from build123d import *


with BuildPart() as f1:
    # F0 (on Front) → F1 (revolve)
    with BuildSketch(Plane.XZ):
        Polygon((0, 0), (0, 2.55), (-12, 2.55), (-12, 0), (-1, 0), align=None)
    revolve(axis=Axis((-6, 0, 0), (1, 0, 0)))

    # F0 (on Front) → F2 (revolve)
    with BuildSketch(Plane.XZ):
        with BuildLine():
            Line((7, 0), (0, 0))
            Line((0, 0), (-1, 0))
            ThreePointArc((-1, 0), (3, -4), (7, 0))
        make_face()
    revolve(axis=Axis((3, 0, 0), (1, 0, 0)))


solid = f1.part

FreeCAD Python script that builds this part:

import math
import FreeCAD as App
import Part
import Sketcher
from FreeCAD import Vector
Q = App.Units.Quantity


def add_polygon(sketch, points):
    """Adds a closed chain of lines whose ends are joined by coincident constraints."""
    first, n = sketch.GeometryCount, len(points)
    for a, b in zip(points, points[1:] + points[:1]):
        sketch.addGeometry(Part.LineSegment(App.Vector(*a, 0), App.Vector(*b, 0)), False)
    for i in range(n):
        sketch.addConstraint(Sketcher.Constraint("Coincident", first + i, 2, first + (i + 1) % n, 1))

doc = App.newDocument("Part")
body = doc.addObject("PartDesign::Body", "Body")

sketch1 = body.newObject("Sketcher::SketchObject", "Sketch")
sketch1.AttachmentSupport = (doc.getObject("XZ_Plane"), [""])
sketch1.MapMode = "FlatFace"
add_polygon(sketch1, [(0, 0), (0, 2.5), (-12, 2.5), (-12, 0)])
sketch1.addConstraint(Sketcher.Constraint("Vertical", 0))
sketch1.addConstraint(Sketcher.Constraint("Horizontal", 1))
sketch1.addConstraint(Sketcher.Constraint("Vertical", 2))
sketch1.addConstraint(Sketcher.Constraint("Horizontal", 3))
sketch1.addConstraint(Sketcher.Constraint("Coincident", 3, 2, -1, 1))
sketch1.addConstraint(Sketcher.Constraint("DistanceX", 1, 2, 1, 1, Q("12 mm")))
sketch1.addConstraint(Sketcher.Constraint("DistanceY", 0, 1, 0, 2, Q("2.55 mm")))
revolution = body.newObject("PartDesign::Revolution", "Revolution")
revolution.Profile = sketch1
revolution.ReferenceAxis = (sketch1, ["H_Axis"])
revolution.Angle = 360

sketch2 = body.newObject("Sketcher::SketchObject", "Sketch001")
sketch2.AttachmentSupport = (doc.getObject("XZ_Plane"), [""])
sketch2.MapMode = "FlatFace"
sketch2.addGeometry(Part.LineSegment(Vector(7, 0, 0), Vector(-1, 0, 0)), False)
sketch2.addGeometry(Part.ArcOfCircle(Part.Circle(Vector(3, 0, 0), Vector(0, 0, 1), 4), math.radians(180), math.radians(360)), False)
sketch2.addConstraint(Sketcher.Constraint("Coincident", 0, 1, 1, 2))
sketch2.addConstraint(Sketcher.Constraint("Coincident", 1, 1, 0, 2))
sketch2.addConstraint(Sketcher.Constraint("Horizontal", 0))
sketch2.addConstraint(Sketcher.Constraint("PointOnObject", 1, 3, -1))
sketch2.addConstraint(Sketcher.Constraint("PointOnObject", 0, 1, -1))
sketch2.addConstraint(Sketcher.Constraint("Radius", 1, Q("4 mm")))
sketch2.addConstraint(Sketcher.Constraint("DistanceX", -1, 1, 1, 3, Q("3 mm")))
revolution2 = body.newObject("PartDesign::Revolution", "Revolution001")
revolution2.Profile = sketch2
revolution2.ReferenceAxis = (sketch2, ["H_Axis"])
revolution2.Angle = 360

doc.recompute()
